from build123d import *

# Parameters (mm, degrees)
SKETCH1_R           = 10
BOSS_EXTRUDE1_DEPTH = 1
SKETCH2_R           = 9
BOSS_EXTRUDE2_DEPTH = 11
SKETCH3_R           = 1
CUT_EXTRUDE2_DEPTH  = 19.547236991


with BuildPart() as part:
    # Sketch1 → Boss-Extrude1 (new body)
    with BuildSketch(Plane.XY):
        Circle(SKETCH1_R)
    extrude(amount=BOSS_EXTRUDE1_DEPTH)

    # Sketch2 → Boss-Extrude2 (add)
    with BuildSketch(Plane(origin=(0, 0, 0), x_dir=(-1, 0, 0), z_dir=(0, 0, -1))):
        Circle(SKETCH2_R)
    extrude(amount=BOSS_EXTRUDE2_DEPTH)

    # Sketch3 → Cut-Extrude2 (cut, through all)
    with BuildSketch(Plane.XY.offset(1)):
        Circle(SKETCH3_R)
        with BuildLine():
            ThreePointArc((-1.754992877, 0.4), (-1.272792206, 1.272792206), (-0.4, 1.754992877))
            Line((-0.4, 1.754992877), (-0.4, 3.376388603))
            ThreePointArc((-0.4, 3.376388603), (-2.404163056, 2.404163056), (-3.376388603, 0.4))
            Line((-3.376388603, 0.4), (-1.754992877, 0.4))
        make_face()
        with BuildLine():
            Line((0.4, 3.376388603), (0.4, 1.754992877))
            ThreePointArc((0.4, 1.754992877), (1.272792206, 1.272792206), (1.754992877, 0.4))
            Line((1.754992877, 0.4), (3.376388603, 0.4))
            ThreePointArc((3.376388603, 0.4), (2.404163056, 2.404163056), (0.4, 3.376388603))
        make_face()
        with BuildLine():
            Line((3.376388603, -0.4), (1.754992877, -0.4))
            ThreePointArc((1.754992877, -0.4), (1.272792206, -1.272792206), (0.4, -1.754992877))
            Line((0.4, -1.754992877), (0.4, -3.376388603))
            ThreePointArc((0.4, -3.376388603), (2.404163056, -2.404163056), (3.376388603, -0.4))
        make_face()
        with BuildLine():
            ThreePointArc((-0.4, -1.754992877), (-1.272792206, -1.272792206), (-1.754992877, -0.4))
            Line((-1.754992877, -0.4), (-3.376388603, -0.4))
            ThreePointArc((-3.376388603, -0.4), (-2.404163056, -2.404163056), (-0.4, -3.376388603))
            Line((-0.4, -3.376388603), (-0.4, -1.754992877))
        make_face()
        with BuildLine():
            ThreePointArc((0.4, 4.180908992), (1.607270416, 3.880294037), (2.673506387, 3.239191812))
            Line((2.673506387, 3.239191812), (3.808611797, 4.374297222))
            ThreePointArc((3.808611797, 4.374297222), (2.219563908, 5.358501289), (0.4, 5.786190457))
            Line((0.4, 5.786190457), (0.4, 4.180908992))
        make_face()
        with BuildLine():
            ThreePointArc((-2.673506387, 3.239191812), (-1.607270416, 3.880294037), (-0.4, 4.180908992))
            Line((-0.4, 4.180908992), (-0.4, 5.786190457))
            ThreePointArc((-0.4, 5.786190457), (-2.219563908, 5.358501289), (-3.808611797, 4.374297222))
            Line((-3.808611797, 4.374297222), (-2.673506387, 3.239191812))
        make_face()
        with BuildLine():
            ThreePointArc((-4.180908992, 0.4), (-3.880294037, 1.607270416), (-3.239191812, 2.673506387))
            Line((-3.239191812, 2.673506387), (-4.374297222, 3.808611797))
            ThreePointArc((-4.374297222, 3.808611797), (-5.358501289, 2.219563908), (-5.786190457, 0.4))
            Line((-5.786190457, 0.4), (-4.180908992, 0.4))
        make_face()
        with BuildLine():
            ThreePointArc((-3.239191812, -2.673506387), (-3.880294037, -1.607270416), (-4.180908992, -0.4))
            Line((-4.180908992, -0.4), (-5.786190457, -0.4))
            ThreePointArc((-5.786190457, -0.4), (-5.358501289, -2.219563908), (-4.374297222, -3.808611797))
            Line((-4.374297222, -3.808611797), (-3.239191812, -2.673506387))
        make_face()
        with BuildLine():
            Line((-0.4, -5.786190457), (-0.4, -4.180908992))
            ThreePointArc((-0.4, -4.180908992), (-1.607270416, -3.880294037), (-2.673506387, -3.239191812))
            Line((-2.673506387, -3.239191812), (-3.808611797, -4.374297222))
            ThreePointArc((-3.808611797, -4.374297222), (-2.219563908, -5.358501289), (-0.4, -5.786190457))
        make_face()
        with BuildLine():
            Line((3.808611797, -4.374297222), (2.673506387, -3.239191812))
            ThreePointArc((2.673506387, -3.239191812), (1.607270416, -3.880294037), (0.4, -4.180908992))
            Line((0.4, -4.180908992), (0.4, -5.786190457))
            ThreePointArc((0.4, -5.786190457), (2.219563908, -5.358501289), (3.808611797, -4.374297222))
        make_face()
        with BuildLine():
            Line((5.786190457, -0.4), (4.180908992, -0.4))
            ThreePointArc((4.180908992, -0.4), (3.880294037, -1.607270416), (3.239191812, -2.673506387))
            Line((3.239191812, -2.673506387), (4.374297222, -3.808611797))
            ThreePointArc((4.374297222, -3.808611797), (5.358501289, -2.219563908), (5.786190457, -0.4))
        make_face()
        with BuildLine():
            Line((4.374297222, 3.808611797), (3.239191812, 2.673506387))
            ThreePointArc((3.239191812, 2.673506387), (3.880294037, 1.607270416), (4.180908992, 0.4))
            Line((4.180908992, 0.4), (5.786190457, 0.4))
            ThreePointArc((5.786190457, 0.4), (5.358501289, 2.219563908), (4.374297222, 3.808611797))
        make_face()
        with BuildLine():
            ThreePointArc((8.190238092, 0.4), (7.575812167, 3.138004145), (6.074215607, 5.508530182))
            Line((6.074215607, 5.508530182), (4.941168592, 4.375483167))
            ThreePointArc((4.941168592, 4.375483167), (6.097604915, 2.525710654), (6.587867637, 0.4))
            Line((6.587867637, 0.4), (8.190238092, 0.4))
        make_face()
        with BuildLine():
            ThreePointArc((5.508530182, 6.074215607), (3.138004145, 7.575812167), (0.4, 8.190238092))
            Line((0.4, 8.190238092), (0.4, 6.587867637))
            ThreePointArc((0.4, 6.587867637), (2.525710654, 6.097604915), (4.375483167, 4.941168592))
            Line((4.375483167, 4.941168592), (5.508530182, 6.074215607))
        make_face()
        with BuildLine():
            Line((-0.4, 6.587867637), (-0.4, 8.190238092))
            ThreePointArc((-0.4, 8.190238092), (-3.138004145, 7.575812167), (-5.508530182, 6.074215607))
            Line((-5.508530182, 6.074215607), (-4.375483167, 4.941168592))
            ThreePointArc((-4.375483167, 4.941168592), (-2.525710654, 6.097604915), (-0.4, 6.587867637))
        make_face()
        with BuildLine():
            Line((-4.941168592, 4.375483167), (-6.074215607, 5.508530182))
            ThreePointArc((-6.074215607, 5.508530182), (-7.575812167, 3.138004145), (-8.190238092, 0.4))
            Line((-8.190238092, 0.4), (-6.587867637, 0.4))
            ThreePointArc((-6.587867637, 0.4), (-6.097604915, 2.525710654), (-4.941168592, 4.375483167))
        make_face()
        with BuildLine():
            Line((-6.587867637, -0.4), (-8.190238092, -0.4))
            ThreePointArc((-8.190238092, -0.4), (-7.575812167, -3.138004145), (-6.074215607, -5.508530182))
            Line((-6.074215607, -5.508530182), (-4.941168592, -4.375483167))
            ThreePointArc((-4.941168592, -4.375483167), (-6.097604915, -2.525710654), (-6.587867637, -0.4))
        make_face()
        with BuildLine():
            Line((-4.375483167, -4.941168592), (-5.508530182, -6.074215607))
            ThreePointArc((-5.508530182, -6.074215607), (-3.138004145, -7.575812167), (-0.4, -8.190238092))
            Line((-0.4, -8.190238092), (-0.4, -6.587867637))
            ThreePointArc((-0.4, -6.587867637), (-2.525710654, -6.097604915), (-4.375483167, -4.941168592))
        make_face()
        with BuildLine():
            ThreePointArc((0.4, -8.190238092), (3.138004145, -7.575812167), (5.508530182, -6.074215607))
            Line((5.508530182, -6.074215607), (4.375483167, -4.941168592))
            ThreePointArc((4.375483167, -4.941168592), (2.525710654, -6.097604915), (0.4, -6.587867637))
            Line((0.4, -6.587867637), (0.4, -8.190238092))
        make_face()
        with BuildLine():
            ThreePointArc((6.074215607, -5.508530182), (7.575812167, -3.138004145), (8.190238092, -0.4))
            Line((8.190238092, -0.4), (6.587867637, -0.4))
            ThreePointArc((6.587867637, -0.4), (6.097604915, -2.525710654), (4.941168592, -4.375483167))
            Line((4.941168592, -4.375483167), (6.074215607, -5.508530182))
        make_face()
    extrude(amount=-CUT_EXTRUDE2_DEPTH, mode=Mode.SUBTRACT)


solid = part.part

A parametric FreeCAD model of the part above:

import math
import FreeCAD as App
import Part
import Sketcher

V = App.Vector
Q = App.Units.Quantity

doc = App.newDocument("Part")
body = doc.addObject("PartDesign::Body", "Body")

# Sketch on XY plane
sketch1 = body.newObject("Sketcher::SketchObject", "Sketch")
sketch1.AttachmentSupport = (doc.getObject("XY_Plane"), [""])
sketch1.MapMode = "FlatFace"
sketch1.addGeometry(Part.Circle(V(0, 0, 0), V(0, 0, 1), 10), False)
sketch1.addConstraint([
    Sketcher.Constraint("Coincident", 0, 3, -1, 1),
    Sketcher.Constraint("Diameter", 0, Q("20 mm")),
])
pad1 = body.newObject("PartDesign::Pad", "Pad")
pad1.Profile = sketch1
pad1.Length = 1

# Sketch on XY plane
sketch2 = body.newObject("Sketcher::SketchObject", "Sketch001")
sketch2.AttachmentSupport = (doc.getObject("XY_Plane"), [""])
sketch2.MapMode = "FlatFace"
sketch2.addGeometry(Part.Circle(V(0, 0, 0), V(0, 0, 1), 9), False)
sketch2.addConstraint([
    Sketcher.Constraint("Coincident", 0, 3, -1, 1),
    Sketcher.Constraint("Diameter", 0, Q("18 mm")),
])
pad2 = body.newObject("PartDesign::Pad", "Pad001")
pad2.Profile = sketch2
pad2.Length = 11
pad2.Reversed = True

# Sketch on XY plane
sketch3 = body.newObject("Sketcher::SketchObject", "Sketch002")
sketch3.AttachmentSupport = (doc.getObject("XY_Plane"), [""])
sketch3.MapMode = "FlatFace"
sketch3.AttachmentOffset = App.Placement(V(0, 0, 1), App.Rotation())
sketch3.addGeometry([
    Part.Circle(V(0, 0, 0), V(0, 0, 1), 1),  # 0
    Part.ArcOfCircle(Part.Circle(V(0, 0, 0), V(0, 0, 1), 1.8), math.radians(102.839588), math.radians(167.160412)),  # 1
    Part.LineSegment(V(-0.4, 1.754993, 0), V(-0.4, 3.376389, 0)),  # 2
    Part.ArcOfCircle(Part.Circle(V(0, 0, 0), V(0, 0, 1), 3.4), math.radians(96.756327), math.radians(173.243673)),  # 3
    Part.LineSegment(V(-3.376389, 0.4, 0), V(-1.754993, 0.4, 0)),  # 4
    Part.LineSegment(V(0.4, 3.376389, 0), V(0.4, 1.754993, 0)),  # 5
    Part.ArcOfCircle(Part.Circle(V(0, 0, 0), V(0, 0, 1), 1.8), math.radians(12.839588), math.radians(77.160412)),  # 6
    Part.LineSegment(V(1.754993, 0.4, 0), V(3.376389, 0.4, 0)),  # 7
    Part.ArcOfCircle(Part.Circle(V(0, 0, 0), V(0, 0, 1), 3.4), math.radians(6.756327), math.radians(83.243673)),  # 8
    Part.LineSegment(V(3.376389, -0.4, 0), V(1.754993, -0.4, 0)),  # 9
    Part.ArcOfCircle(Part.Circle(V(0, 0, 0), V(0, 0, 1), 1.8), math.radians(-77.160412), math.radians(-12.839588)),  # 10
    Part.LineSegment(V(0.4, -1.754993, 0), V(0.4, -3.376389, 0)),  # 11
    Part.ArcOfCircle(Part.Circle(V(0, 0, 0), V(0, 0, 1), 3.4), math.radians(-83.243673), math.radians(-6.756327)),  # 12
    Part.ArcOfCircle(Part.Circle(V(0, 0, 0), V(0, 0, 1), 1.8), math.radians(-167.160412), math.radians(-102.839588)),  # 13
    Part.LineSegment(V(-1.754993, -0.4, 0), V(-3.376389, -0.4, 0)),  # 14
    Part.ArcOfCircle(Part.Circle(V(0, 0, 0), V(0, 0, 1), 3.4), math.radians(-173.243673), math.radians(-96.756327)),  # 15
    Part.LineSegment(V(-0.4, -3.376389, 0), V(-0.4, -1.754993, 0)),  # 16
    Part.ArcOfCircle(Part.Circle(V(0, 0, 0), V(0, 0, 1), 4.2), math.radians(50.465024), math.radians(84.534976)),  # 17
    Part.LineSegment(V(2.673506, 3.239192, 0), V(3.808612, 4.374297, 0)),  # 18
    Part.ArcOfCircle(Part.Circle(V(0, 0, 0), V(0, 0, 1), 5.8), math.radians(48.954572), math.radians(86.045428)),  # 19
    Part.LineSegment(V(0.4, 5.78619, 0), V(0.4, 4.180909, 0)),  # 20
    Part.ArcOfCircle(Part.Circle(V(0, 0, 0), V(0, 0, 1), 4.2), math.radians(95.465024), math.radians(129.534976)),  # 21
    Part.LineSegment(V(-0.4, 4.180909, 0), V(-0.4, 5.78619, 0)),  # 22
    Part.ArcOfCircle(Part.Circle(V(0, 0, 0), V(0, 0, 1), 5.8), math.radians(93.954572), math.radians(131.045428)),  # 23
    Part.LineSegment(V(-3.808612, 4.374297, 0), V(-2.673506, 3.239192, 0)),  # 24
    Part.ArcOfCircle(Part.Circle(V(0, 0, 0), V(0, 0, 1), 4.2), math.radians(140.465024), math.radians(174.534976)),  # 25
    Part.LineSegment(V(-3.239192, 2.673506, 0), V(-4.374297, 3.808612, 0)),  # 26
    Part.ArcOfCircle(Part.Circle(V(0, 0, 0), V(0, 0, 1), 5.8), math.radians(138.954572), math.radians(176.045428)),  # 27
    Part.LineSegment(V(-5.78619, 0.4, 0), V(-4.180909, 0.4, 0)),  # 28
    Part.ArcOfCircle(Part.Circle(V(0, 0, 0), V(0, 0, 1), 4.2), math.radians(-174.534976), math.radians(-140.465024)),  # 29
    Part.LineSegment(V(-4.180909, -0.4, 0), V(-5.78619, -0.4, 0)),  # 30
    Part.ArcOfCircle(Part.Circle(V(0, 0, 0), V(0, 0, 1), 5.8), math.radians(-176.045428), math.radians(-138.954572)),  # 31
    Part.LineSegment(V(-4.374297, -3.808612, 0), V(-3.239192, -2.673506, 0)),  # 32
    Part.LineSegment(V(-0.4, -5.78619, 0), V(-0.4, -4.180909, 0)),  # 33
    Part.ArcOfCircle(Part.Circle(V(0, 0, 0), V(0, 0, 1), 4.2), math.radians(-129.534976), math.radians(-95.465024)),  # 34
    Part.LineSegment(V(-2.673506, -3.239192, 0), V(-3.808612, -4.374297, 0)),  # 35
    Part.ArcOfCircle(Part.Circle(V(0, 0, 0), V(0, 0, 1), 5.8), math.radians(-131.045428), math.radians(-93.954572)),  # 36
    Part.LineSegment(V(3.808612, -4.374297, 0), V(2.673506, -3.239192, 0)),  # 37
    Part.ArcOfCircle(Part.Circle(V(0, 0, 0), V(0, 0, 1), 4.2), math.radians(-84.534976), math.radians(-50.465024)),  # 38
    Part.LineSegment(V(0.4, -4.180909, 0), V(0.4, -5.78619, 0)),  # 39
    Part.ArcOfCircle(Part.Circle(V(0, 0, 0), V(0, 0, 1), 5.8), math.radians(-86.045428), math.radians(-48.954572)),  # 40
    Part.LineSegment(V(5.78619, -0.4, 0), V(4.180909, -0.4, 0)),  # 41
    Part.ArcOfCircle(Part.Circle(V(0, 0, 0), V(0, 0, 1), 4.2), math.radians(-39.534976), math.radians(-5.465024)),  # 42
    Part.LineSegment(V(3.239192, -2.673506, 0), V(4.374297, -3.808612, 0)),  # 43
    Part.ArcOfCircle(Part.Circle(V(0, 0, 0), V(0, 0, 1), 5.8), math.radians(-41.045428), math.radians(-3.954572)),  # 44
    Part.LineSegment(V(4.374297, 3.808612, 0), V(3.239192, 2.673506, 0)),  # 45
    Part.ArcOfCircle(Part.Circle(V(0, 0, 0), V(0, 0, 1), 4.2), math.radians(5.465024), math.radians(39.534976)),  # 46
    Part.LineSegment(V(4.180909, 0.4, 0), V(5.78619, 0.4, 0)),  # 47
    Part.ArcOfCircle(Part.Circle(V(0, 0, 0), V(0, 0, 1), 5.8), math.radians(3.954572), math.radians(41.045428)),  # 48
    Part.ArcOfCircle(Part.Circle(V(0, 0, 0), V(0, 0, 1), 8.2), math.radians(2.796026), math.radians(42.203974)),  # 49
    Part.LineSegment(V(6.074216, 5.50853, 0), V(4.941169, 4.375483, 0)),  # 50
    Part.ArcOfCircle(Part.Circle(V(0, 0, 0), V(0, 0, 1), 6.6), math.radians(3.474601), math.radians(41.525399)),  # 51
    Part.LineSegment(V(6.587868, 0.4, 0), V(8.190238, 0.4, 0)),  # 52
    Part.ArcOfCircle(Part.Circle(V(0, 0, 0), V(0, 0, 1), 8.2), math.radians(47.796026), math.radians(87.203974)),  # 53
    Part.LineSegment(V(0.4, 8.190238, 0), V(0.4, 6.587868, 0)),  # 54
    Part.ArcOfCircle(Part.Circle(V(0, 0, 0), V(0, 0, 1), 6.6), math.radians(48.474601), math.radians(86.525399)),  # 55
    Part.LineSegment(V(4.375483, 4.941169, 0), V(5.50853, 6.074216, 0)),  # 56
    Part.LineSegment(V(-0.4, 6.587868, 0), V(-0.4, 8.190238, 0)),  # 57
    Part.ArcOfCircle(Part.Circle(V(0, 0, 0), V(0, 0, 1), 8.2), math.radians(92.796026), math.radians(132.203974)),  # 58
    Part.LineSegment(V(-5.50853, 6.074216, 0), V(-4.375483, 4.941169, 0)),  # 59
    Part.ArcOfCircle(Part.Circle(V(0, 0, 0), V(0, 0, 1), 6.6), math.radians(93.474601), math.radians(131.525399)),  # 60
    Part.LineSegment(V(-4.941169, 4.375483, 0), V(-6.074216, 5.50853, 0)),  # 61
    Part.ArcOfCircle(Part.Circle(V(0, 0, 0), V(0, 0, 1), 8.2), math.radians(137.796026), math.radians(177.203974)),  # 62
    Part.LineSegment(V(-8.190238, 0.4, 0), V(-6.587868, 0.4, 0)),  # 63
    Part.ArcOfCircle(Part.Circle(V(0, 0, 0), V(0, 0, 1), 6.6), math.radians(138.474601), math.radians(176.525399)),  # 64
    Part.LineSegment(V(-6.587868, -0.4, 0), V(-8.190238, -0.4, 0)),  # 65
    Part.ArcOfCircle(Part.Circle(V(0, 0, 0), V(0, 0, 1), 8.2), math.radians(-177.203974), math.radians(-137.796026)),  # 66
    Part.LineSegment(V(-6.074216, -5.50853, 0), V(-4.941169, -4.375483, 0)),  # 67
    Part.ArcOfCircle(Part.Circle(V(0, 0, 0), V(0, 0, 1), 6.6), math.radians(-176.525399), math.radians(-138.474601)),  # 68
    Part.LineSegment(V(-4.375483, -4.941169, 0), V(-5.50853, -6.074216, 0)),  # 69
    Part.ArcOfCircle(Part.Circle(V(0, 0, 0), V(0, 0, 1), 8.2), math.radians(-132.203974), math.radians(-92.796026)),  # 70
    Part.LineSegment(V(-0.4, -8.190238, 0), V(-0.4, -6.587868, 0)),  # 71
    Part.ArcOfCircle(Part.Circle(V(0, 0, 0), V(0, 0, 1), 6.6), math.radians(-131.525399), math.radians(-93.474601)),  # 72
    Part.ArcOfCircle(Part.Circle(V(0, 0, 0), V(0, 0, 1), 8.2), math.radians(-87.203974), math.radians(-47.796026)),  # 73
    Part.LineSegment(V(5.50853, -6.074216, 0), V(4.375483, -4.941169, 0)),  # 74
    Part.ArcOfCircle(Part.Circle(V(0, 0, 0), V(0, 0, 1), 6.6), math.radians(-86.525399), math.radians(-48.474601)),  # 75
    Part.LineSegment(V(0.4, -6.587868, 0), V(0.4, -8.190238, 0)),  # 76
    Part.ArcOfCircle(Part.Circle(V(0, 0, 0), V(0, 0, 1), 8.2), math.radians(-42.203974), math.radians(-2.796026)),  # 77
    Part.LineSegment(V(8.190238, -0.4, 0), V(6.587868, -0.4, 0)),  # 78
    Part.ArcOfCircle(Part.Circle(V(0, 0, 0), V(0, 0, 1), 6.6), math.radians(-41.525399), math.radians(-3.474601)),  # 79
    Part.LineSegment(V(4.941169, -4.375483, 0), V(6.074216, -5.50853, 0)),  # 80
], False)
sketch3.addConstraint([
    Sketcher.Constraint("Coincident", 1, 1, 2, 1),
    Sketcher.Constraint("Coincident", 2, 2, 3, 1),
    Sketcher.Constraint("Coincident", 3, 2, 4, 1),
    Sketcher.Constraint("Coincident", 4, 2, 1, 2),
    Sketcher.Constraint("Coincident", 5, 2, 6, 2),
    Sketcher.Constraint("Coincident", 6, 1, 7, 1),
    Sketcher.Constraint("Coincident", 7, 2, 8, 1),
    Sketcher.Constraint("Coincident", 8, 2, 5, 1),
    Sketcher.Constraint("Coincident", 9, 2, 10, 2),
    Sketcher.Constraint("Coincident", 10, 1, 11, 1),
    Sketcher.Constraint("Coincident", 11, 2, 12, 1),
    Sketcher.Constraint("Coincident", 12, 2, 9, 1),
    Sketcher.Constraint("Coincident", 13, 1, 14, 1),
    Sketcher.Constraint("Coincident", 14, 2, 15, 1),
    Sketcher.Constraint("Coincident", 15, 2, 16, 1),
    Sketcher.Constraint("Coincident", 16, 2, 13, 2),
    Sketcher.Constraint("Coincident", 17, 1, 18, 1),
    Sketcher.Constraint("Coincident", 18, 2, 19, 1),
    Sketcher.Constraint("Coincident", 19, 2, 20, 1),
    Sketcher.Constraint("Coincident", 20, 2, 17, 2),
    Sketcher.Constraint("Coincident", 21, 1, 22, 1),
    Sketcher.Constraint("Coincident", 22, 2, 23, 1),
    Sketcher.Constraint("Coincident", 23, 2, 24, 1),
    Sketcher.Constraint("Coincident", 24, 2, 21, 2),
    Sketcher.Constraint("Coincident", 25, 1, 26, 1),
    Sketcher.Constraint("Coincident", 26, 2, 27, 1),
    Sketcher.Constraint("Coincident", 27, 2, 28, 1),
    Sketcher.Constraint("Coincident", 28, 2, 25, 2),
    Sketcher.Constraint("Coincident", 29, 1, 30, 1),
    Sketcher.Constraint("Coincident", 30, 2, 31, 1),
    Sketcher.Constraint("Coincident", 31, 2, 32, 1),
    Sketcher.Constraint("Coincident", 32, 2, 29, 2),
    Sketcher.Constraint("Coincident", 33, 2, 34, 2),
    Sketcher.Constraint("Coincident", 34, 1, 35, 1),
    Sketcher.Constraint("Coincident", 35, 2, 36, 1),
    Sketcher.Constraint("Coincident", 36, 2, 33, 1),
    Sketcher.Constraint("Coincident", 37, 2, 38, 2),
    Sketcher.Constraint("Coincident", 38, 1, 39, 1),
    Sketcher.Constraint("Coincident", 39, 2, 40, 1),
    Sketcher.Constraint("Coincident", 40, 2, 37, 1),
    Sketcher.Constraint("Coincident", 41, 2, 42, 2),
    Sketcher.Constraint("Coincident", 42, 1, 43, 1),
    Sketcher.Constraint("Coincident", 43, 2, 44, 1),
    Sketcher.Constraint("Coincident", 44, 2, 41, 1),
    Sketcher.Constraint("Coincident", 45, 2, 46, 2),
    Sketcher.Constraint("Coincident", 46, 1, 47, 1),
    Sketcher.Constraint("Coincident", 47, 2, 48, 1),
    Sketcher.Constraint("Coincident", 48, 2, 45, 1),
    Sketcher.Constraint("Coincident", 49, 2, 50, 1),
    Sketcher.Constraint("Coincident", 50, 2, 51, 2),
    Sketcher.Constraint("Coincident", 51, 1, 52, 1),
    Sketcher.Constraint("Coincident", 52, 2, 49, 1),
    Sketcher.Constraint("Coincident", 53, 2, 54, 1),
    Sketcher.Constraint("Coincident", 54, 2, 55, 2),
    Sketcher.Constraint("Coincident", 55, 1, 56, 1),
    Sketcher.Constraint("Coincident", 56, 2, 53, 1),
    Sketcher.Constraint("Coincident", 57, 2, 58, 1),
    Sketcher.Constraint("Coincident", 58, 2, 59, 1),
    Sketcher.Constraint("Coincident", 59, 2, 60, 2),
    Sketcher.Constraint("Coincident", 60, 1, 57, 1),
    Sketcher.Constraint("Coincident", 61, 2, 62, 1),
    Sketcher.Constraint("Coincident", 62, 2, 63, 1),
    Sketcher.Constraint("Coincident", 63, 2, 64, 2),
    Sketcher.Constraint("Coincident", 64, 1, 61, 1),
    Sketcher.Constraint("Coincident", 65, 2, 66, 1),
    Sketcher.Constraint("Coincident", 66, 2, 67, 1),
    Sketcher.Constraint("Coincident", 67, 2, 68, 2),
    Sketcher.Constraint("Coincident", 68, 1, 65, 1),
    Sketcher.Constraint("Coincident", 69, 2, 70, 1),
    Sketcher.Constraint("Coincident", 70, 2, 71, 1),
    Sketcher.Constraint("Coincident", 71, 2, 72, 2),
    Sketcher.Constraint("Coincident", 72, 1, 69, 1),
    Sketcher.Constraint("Coincident", 73, 2, 74, 1),
    Sketcher.Constraint("Coincident", 74, 2, 75, 2),
    Sketcher.Constraint("Coincident", 75, 1, 76, 1),
    Sketcher.Constraint("Coincident", 76, 2, 73, 1),
    Sketcher.Constraint("Coincident", 77, 2, 78, 1),
    Sketcher.Constraint("Coincident", 78, 2, 79, 2),
    Sketcher.Constraint("Coincident", 79, 1, 80, 1),
    Sketcher.Constraint("Coincident", 80, 2, 77, 1),
    Sketcher.Constraint("Vertical", 2),
    Sketcher.Constraint("Horizontal", 4),
    Sketcher.Constraint("Vertical", 5),
    Sketcher.Constraint("Horizontal", 7),
    Sketcher.Constraint("Horizontal", 9),
    Sketcher.Constraint("Vertical", 11),
    Sketcher.Constraint("Horizontal", 14),
    Sketcher.Constraint("Vertical", 16),
    Sketcher.Constraint("Vertical", 20),
    Sketcher.Constraint("Vertical", 22),
    Sketcher.Constraint("Horizontal", 28),
    Sketcher.Constraint("Horizontal", 30),
    Sketcher.Constraint("Vertical", 33),
    Sketcher.Constraint("Vertical", 39),
    Sketcher.Constraint("Horizontal", 41),
    Sketcher.Constraint("Horizontal", 47),
    Sketcher.Constraint("Horizontal", 52),
    Sketcher.Constraint("Vertical", 54),
    Sketcher.Constraint("Vertical", 57),
    Sketcher.Constraint("Horizontal", 63),
    Sketcher.Constraint("Horizontal", 65),
    Sketcher.Constraint("Vertical", 71),
    Sketcher.Constraint("Vertical", 76),
    Sketcher.Constraint("Horizontal", 78),
    Sketcher.Constraint("Coincident", 0, 3, -1, 1),
    Sketcher.Constraint("Coincident", 1, 3, -1, 1),
    Sketcher.Constraint("Coincident", 3, 3, -1, 1),
    Sketcher.Constraint("Coincident", 6, 3, -1, 1),
    Sketcher.Constraint("Coincident", 8, 3, -1, 1),
    Sketcher.Constraint("Coincident", 10, 3, -1, 1),
    Sketcher.Constraint("Coincident", 12, 3, -1, 1),
    Sketcher.Constraint("Coincident", 13, 3, -1, 1),
    Sketcher.Constraint("Coincident", 15, 3, -1, 1),
    Sketcher.Constraint("Coincident", 17, 3, -1, 1),
    Sketcher.Constraint("Coincident", 19, 3, -1, 1),
    Sketcher.Constraint("Coincident", 21, 3, -1, 1),
    Sketcher.Constraint("Coincident", 23, 3, -1, 1),
    Sketcher.Constraint("Coincident", 25, 3, -1, 1),
    Sketcher.Constraint("Coincident", 27, 3, -1, 1),
    Sketcher.Constraint("Coincident", 29, 3, -1, 1),
    Sketcher.Constraint("Coincident", 31, 3, -1, 1),
    Sketcher.Constraint("Coincident", 34, 3, -1, 1),
    Sketcher.Constraint("Coincident", 36, 3, -1, 1),
    Sketcher.Constraint("Coincident", 38, 3, -1, 1),
    Sketcher.Constraint("Coincident", 40, 3, -1, 1),
    Sketcher.Constraint("Coincident", 42, 3, -1, 1),
    Sketcher.Constraint("Coincident", 44, 3, -1, 1),
    Sketcher.Constraint("Coincident", 46, 3, -1, 1),
    Sketcher.Constraint("Coincident", 48, 3, -1, 1),
    Sketcher.Constraint("Coincident", 49, 3, -1, 1),
    Sketcher.Constraint("Coincident", 51, 3, -1, 1),
    Sketcher.Constraint("Coincident", 53, 3, -1, 1),
    Sketcher.Constraint("Coincident", 55, 3, -1, 1),
    Sketcher.Constraint("Coincident", 58, 3, -1, 1),
    Sketcher.Constraint("Coincident", 60, 3, -1, 1),
    Sketcher.Constraint("Coincident", 62, 3, -1, 1),
    Sketcher.Constraint("Coincident", 64, 3, -1, 1),
    Sketcher.Constraint("Coincident", 66, 3, -1, 1),
    Sketcher.Constraint("Coincident", 68, 3, -1, 1),
    Sketcher.Constraint("Coincident", 70, 3, -1, 1),
    Sketcher.Constraint("Coincident", 72, 3, -1, 1),
    Sketcher.Constraint("Coincident", 73, 3, -1, 1),
    Sketcher.Constraint("Coincident", 75, 3, -1, 1),
    Sketcher.Constraint("Coincident", 77, 3, -1, 1),
    Sketcher.Constraint("Coincident", 79, 3, -1, 1),
    Sketcher.Constraint("Diameter", 0, Q("2 mm")),
    Sketcher.Constraint("Radius", 1, Q("1.8 mm")),
    Sketcher.Constraint("Radius", 3, Q("3.4 mm")),
    Sketcher.Constraint("Radius", 6, Q("1.8 mm")),
    Sketcher.Constraint("Radius", 8, Q("3.4 mm")),
    Sketcher.Constraint("Radius", 10, Q("1.8 mm")),
    Sketcher.Constraint("Radius", 12, Q("3.4 mm")),
    Sketcher.Constraint("Radius", 13, Q("1.8 mm")),
    Sketcher.Constraint("Radius", 15, Q("3.4 mm")),
    Sketcher.Constraint("Radius", 17, Q("4.2 mm")),
    Sketcher.Constraint("Radius", 19, Q("5.8 mm")),
    Sketcher.Constraint("Radius", 21, Q("4.2 mm")),
    Sketcher.Constraint("Radius", 23, Q("5.8 mm")),
    Sketcher.Constraint("Radius", 25, Q("4.2 mm")),
    Sketcher.Constraint("Radius", 27, Q("5.8 mm")),
    Sketcher.Constraint("Radius", 29, Q("4.2 mm")),
    Sketcher.Constraint("Radius", 31, Q("5.8 mm")),
    Sketcher.Constraint("Radius", 34, Q("4.2 mm")),
    Sketcher.Constraint("Radius", 36, Q("5.8 mm")),
    Sketcher.Constraint("Radius", 38, Q("4.2 mm")),
    Sketcher.Constraint("Radius", 40, Q("5.8 mm")),
    Sketcher.Constraint("Radius", 42, Q("4.2 mm")),
    Sketcher.Constraint("Radius", 44, Q("5.8 mm")),
    Sketcher.Constraint("Radius", 46, Q("4.2 mm")),
    Sketcher.Constraint("Radius", 48, Q("5.8 mm")),
    Sketcher.Constraint("Radius", 49, Q("8.2 mm")),
    Sketcher.Constraint("Radius", 51, Q("6.6 mm")),
    Sketcher.Constraint("Radius", 53, Q("8.2 mm")),
    Sketcher.Constraint("Radius", 55, Q("6.6 mm")),
    Sketcher.Constraint("Radius", 58, Q("8.2 mm")),
    Sketcher.Constraint("Radius", 60, Q("6.6 mm")),
    Sketcher.Constraint("Radius", 62, Q("8.2 mm")),
    Sketcher.Constraint("Radius", 64, Q("6.6 mm")),
    Sketcher.Constraint("Radius", 66, Q("8.2 mm")),
    Sketcher.Constraint("Radius", 68, Q("6.6 mm")),
    Sketcher.Constraint("Radius", 70, Q("8.2 mm")),
    Sketcher.Constraint("Radius", 72, Q("6.6 mm")),
    Sketcher.Constraint("Radius", 73, Q("8.2 mm")),
    Sketcher.Constraint("Radius", 75, Q("6.6 mm")),
    Sketcher.Constraint("Radius", 77, Q("8.2 mm")),
    Sketcher.Constraint("Radius", 79, Q("6.6 mm")),
    Sketcher.Constraint("DistanceX", 1, 1, -1, 1, Q("0.4 mm")),
    Sketcher.Constraint("DistanceY", -1, 1, 3, 2, Q("0.4 mm")),
    Sketcher.Constraint("DistanceX", -1, 1, 5, 2, Q("0.4 mm")),
    Sketcher.Constraint("DistanceY", -1, 1, 6, 1, Q("0.4 mm")),
    Sketcher.Constraint("DistanceY", 9, 2, -1, 1, Q("0.4 mm")),
    Sketcher.Constraint("DistanceX", -1, 1, 10, 1, Q("0.4 mm")),
    Sketcher.Constraint("DistanceY", 13, 1, -1, 1, Q("0.4 mm")),
    Sketcher.Constraint("DistanceX", 15, 2, -1, 1, Q("0.4 mm")),
    Sketcher.Constraint("DistanceX", -1, 1, 19, 2, Q("0.4 mm")),
    Sketcher.Constraint("DistanceX", 21, 1, -1, 1, Q("0.4 mm")),
    Sketcher.Constraint("DistanceY", -1, 1, 27, 2, Q("0.4 mm")),
    Sketcher.Constraint("DistanceY", 29, 1, -1, 1, Q("0.4 mm")),
    Sketcher.Constraint("DistanceX", 33, 2, -1, 1, Q("0.4 mm")),
    Sketcher.Constraint("DistanceX", -1, 1, 38, 1, Q("0.4 mm")),
    Sketcher.Constraint("DistanceY", 41, 2, -1, 1, Q("0.4 mm")),
    Sketcher.Constraint("DistanceY", -1, 1, 46, 1, Q("0.4 mm")),
    Sketcher.Constraint("DistanceY", -1, 1, 51, 1, Q("0.4 mm")),
    Sketcher.Constraint("DistanceX", -1, 1, 53, 2, Q("0.4 mm")),
    Sketcher.Constraint("DistanceX", 57, 2, -1, 1, Q("0.4 mm")),
    Sketcher.Constraint("DistanceY", -1, 1, 62, 2, Q("0.4 mm")),
    Sketcher.Constraint("DistanceY", 65, 2, -1, 1, Q("0.4 mm")),
    Sketcher.Constraint("DistanceX", 70, 2, -1, 1, Q("0.4 mm")),
    Sketcher.Constraint("DistanceX", -1, 1, 75, 1, Q("0.4 mm")),
    Sketcher.Constraint("DistanceY", 77, 2, -1, 1, Q("0.4 mm")),
    Sketcher.Constraint("Distance", 18, Q("1.605281 mm")),
    Sketcher.Constraint("Distance", 24, Q("1.605281 mm")),
    Sketcher.Constraint("Distance", 26, Q("1.605281 mm")),
    Sketcher.Constraint("Distance", 32, Q("1.605281 mm")),
    Sketcher.Constraint("Distance", 35, Q("1.605281 mm")),
    Sketcher.Constraint("Distance", 37, Q("1.605281 mm")),
    Sketcher.Constraint("Distance", 43, Q("1.605281 mm")),
    Sketcher.Constraint("Distance", 45, Q("1.605281 mm")),
    Sketcher.Constraint("Distance", 50, Q("1.60237 mm")),
    Sketcher.Constraint("Distance", 56, Q("1.60237 mm")),
    Sketcher.Constraint("Distance", 59, Q("1.60237 mm")),
    Sketcher.Constraint("Distance", 61, Q("1.60237 mm")),
    Sketcher.Constraint("Distance", 67, Q("1.60237 mm")),
    Sketcher.Constraint("Distance", 69, Q("1.60237 mm")),
    Sketcher.Constraint("Distance", 74, Q("1.60237 mm")),
    Sketcher.Constraint("Distance", 80, Q("1.60237 mm")),
    Sketcher.Constraint("DistanceY", -1, 1, 17, 1, Q("3.239192 mm")),
    Sketcher.Constraint("DistanceX", 23, 2, -1, 1, Q("3.808612 mm")),
    Sketcher.Constraint("DistanceX", 25, 1, -1, 1, Q("3.239192 mm")),
    Sketcher.Constraint("DistanceY", 31, 2, -1, 1, Q("3.808612 mm")),
    Sketcher.Constraint("DistanceY", 34, 1, -1, 1, Q("3.239192 mm")),
    Sketcher.Constraint("DistanceY", 37, 2, -1, 1, Q("3.239192 mm")),
    Sketcher.Constraint("DistanceX", -1, 1, 42, 1, Q("3.239192 mm")),
    Sketcher.Constraint("DistanceX", -1, 1, 45, 2, Q("3.239192 mm")),
    Sketcher.Constraint("DistanceY", -1, 1, 49, 2, Q("5.50853 mm")),
    Sketcher.Constraint("DistanceY", -1, 1, 55, 1, Q("4.941169 mm")),
    Sketcher.Constraint("DistanceX", 58, 2, -1, 1, Q("5.50853 mm")),
    Sketcher.Constraint("DistanceY", -1, 1, 61, 2, Q("5.50853 mm")),
    Sketcher.Constraint("DistanceY", 66, 2, -1, 1, Q("5.50853 mm")),
    Sketcher.Constraint("DistanceX", 69, 2, -1, 1, Q("5.50853 mm")),
    Sketcher.Constraint("DistanceX", -1, 1, 73, 2, Q("5.50853 mm")),
    Sketcher.Constraint("DistanceX", -1, 1, 79, 1, Q("4.941169 mm")),
])
pocket1 = body.newObject("PartDesign::Pocket", "Pocket")
pocket1.Profile = sketch3
pocket1.Type = "ThroughAll"

doc.recompute()
